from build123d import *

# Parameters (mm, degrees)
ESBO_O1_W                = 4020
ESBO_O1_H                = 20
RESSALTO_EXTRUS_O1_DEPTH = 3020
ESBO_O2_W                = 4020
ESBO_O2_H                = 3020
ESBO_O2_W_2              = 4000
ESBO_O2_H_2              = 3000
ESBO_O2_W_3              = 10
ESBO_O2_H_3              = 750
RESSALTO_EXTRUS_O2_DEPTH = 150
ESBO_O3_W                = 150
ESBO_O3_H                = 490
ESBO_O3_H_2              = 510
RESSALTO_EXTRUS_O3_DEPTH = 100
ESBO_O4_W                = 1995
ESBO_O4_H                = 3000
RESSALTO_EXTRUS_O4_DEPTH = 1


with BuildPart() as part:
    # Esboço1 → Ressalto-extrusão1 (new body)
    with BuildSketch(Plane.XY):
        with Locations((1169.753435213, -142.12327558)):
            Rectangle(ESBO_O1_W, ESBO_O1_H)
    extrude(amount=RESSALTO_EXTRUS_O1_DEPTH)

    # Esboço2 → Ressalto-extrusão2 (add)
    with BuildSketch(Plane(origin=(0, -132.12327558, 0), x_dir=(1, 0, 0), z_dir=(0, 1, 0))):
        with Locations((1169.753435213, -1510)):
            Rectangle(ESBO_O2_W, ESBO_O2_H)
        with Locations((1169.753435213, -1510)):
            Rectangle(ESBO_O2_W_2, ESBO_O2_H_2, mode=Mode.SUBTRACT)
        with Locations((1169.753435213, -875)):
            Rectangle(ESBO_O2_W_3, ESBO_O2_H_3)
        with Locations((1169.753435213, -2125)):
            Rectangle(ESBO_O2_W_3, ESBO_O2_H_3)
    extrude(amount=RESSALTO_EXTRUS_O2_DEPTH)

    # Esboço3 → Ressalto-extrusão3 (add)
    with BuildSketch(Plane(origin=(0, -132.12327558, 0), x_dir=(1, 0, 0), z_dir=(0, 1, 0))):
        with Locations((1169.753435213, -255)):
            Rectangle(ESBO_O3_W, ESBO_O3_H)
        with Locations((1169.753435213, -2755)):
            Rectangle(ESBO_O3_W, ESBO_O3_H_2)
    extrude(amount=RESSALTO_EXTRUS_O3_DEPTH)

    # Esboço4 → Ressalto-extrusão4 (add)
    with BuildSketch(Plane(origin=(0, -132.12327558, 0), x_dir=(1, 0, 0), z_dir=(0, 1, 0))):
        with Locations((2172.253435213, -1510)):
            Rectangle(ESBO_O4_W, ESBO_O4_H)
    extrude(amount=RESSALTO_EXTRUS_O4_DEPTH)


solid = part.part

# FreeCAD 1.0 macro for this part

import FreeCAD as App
import Part
import Sketcher
Q = App.Units.Quantity


def add_polygon(sketch, points):
    """Adds a closed chain of lines whose ends are joined by coincident constraints."""
    first, n = sketch.GeometryCount, len(points)
    for a, b in zip(points, points[1:] + points[:1]):
        sketch.addGeometry(Part.LineSegment(App.Vector(*a, 0), App.Vector(*b, 0)), False)
    for i in range(n):
        sketch.addConstraint(Sketcher.Constraint("Coincident", first + i, 2, first + (i + 1) % n, 1))

doc = App.newDocument("Part")
body = doc.addObject("PartDesign::Body", "Body")

# Sketch on XY plane
sketch1 = doc.addObject("Sketcher::SketchObject", "Sketch")
body.addObject(sketch1)
sketch1.AttachmentSupport = (doc.XY_Plane, [""])
sketch1.MapMode = "FlatFace"
add_polygon(sketch1, [(-840.246565, -132.123276), (-840.246565, -152.123276), (3179.753435, -152.123276), (3179.753435, -132.123276)])  # lines 0-3
sketch1.addConstraint(Sketcher.Constraint("Vertical", 0))
sketch1.addConstraint(Sketcher.Constraint("Horizontal", 1))
sketch1.addConstraint(Sketcher.Constraint("Vertical", 2))
sketch1.addConstraint(Sketcher.Constraint("Horizontal", 3))
sketch1.addConstraint(Sketcher.Constraint("DistanceX", 1, 1, 1, 2, Q("4020 mm")))
sketch1.addConstraint(Sketcher.Constraint("DistanceY", 0, 2, 0, 1, Q("20 mm")))
sketch1.addConstraint(Sketcher.Constraint("DistanceX", 0, 2, -1, 1, Q("840.246565 mm")))
sketch1.addConstraint(Sketcher.Constraint("DistanceY", 0, 2, -1, 1, Q("152.123276 mm")))
pad1 = doc.addObject("PartDesign::Pad", "Pad")
body.addObject(pad1)
pad1.Profile = sketch1
pad1.Length = 3020

# Sketch on XZ plane
sketch2 = doc.addObject("Sketcher::SketchObject", "Sketch001")
body.addObject(sketch2)
sketch2.AttachmentSupport = (doc.XZ_Plane, [""])
sketch2.MapMode = "FlatFace"
sketch2.AttachmentOffset = App.Placement(App.Vector(0, 0, 132.123276), App.Rotation())
add_polygon(sketch2, [(-840.246565, 0), (-840.246565, 3020), (3179.753435, 3020), (3179.753435, 0)])  # lines 0-3
add_polygon(sketch2, [(3169.753435, 3010), (-830.246565, 3010), (-830.246565, 10), (3169.753435, 10)])  # lines 4-7
add_polygon(sketch2, [(1164.753435, 500), (1164.753435, 1250), (1174.753435, 1250), (1174.753435, 500)])  # lines 8-11
add_polygon(sketch2, [(1164.753435, 1750), (1164.753435, 2500), (1174.753435, 2500), (1174.753435, 1750)])  # lines 12-15
sketch2.addConstraint(Sketcher.Constraint("Vertical", 0))
sketch2.addConstraint(Sketcher.Constraint("Horizontal", 1))
sketch2.addConstraint(Sketcher.Constraint("Vertical", 2))
sketch2.addConstraint(Sketcher.Constraint("Horizontal", 3))
sketch2.addConstraint(Sketcher.Constraint("Horizontal", 4))
sketch2.addConstraint(Sketcher.Constraint("Vertical", 5))
sketch2.addConstraint(Sketcher.Constraint("Horizontal", 6))
sketch2.addConstraint(Sketcher.Constraint("Vertical", 7))
sketch2.addConstraint(Sketcher.Constraint("Vertical", 8))
sketch2.addConstraint(Sketcher.Constraint("Horizontal", 9))
sketch2.addConstraint(Sketcher.Constraint("Vertical", 10))
sketch2.addConstraint(Sketcher.Constraint("Horizontal", 11))
sketch2.addConstraint(Sketcher.Constraint("Vertical", 12))
sketch2.addConstraint(Sketcher.Constraint("Horizontal", 13))
sketch2.addConstraint(Sketcher.Constraint("Vertical", 14))
sketch2.addConstraint(Sketcher.Constraint("Horizontal", 15))
sketch2.addConstraint(Sketcher.Constraint("PointOnObject", 2, 2, -1))
sketch2.addConstraint(Sketcher.Constraint("Vertical", 11, 2, 12, 2))
sketch2.addConstraint(Sketcher.Constraint("Vertical", 10, 2, 13, 2))
sketch2.addConstraint(Sketcher.Constraint("Equal", 10, 12))
sketch2.addConstraint(Sketcher.Constraint("DistanceX", 1, 1, 1, 2, Q("4020 mm")))
sketch2.addConstraint(Sketcher.Constraint("DistanceX", 4, 2, 4, 1, Q("4000 mm")))
sketch2.addConstraint(Sketcher.Constraint("DistanceX", 9, 1, 9, 2, Q("10 mm")))
sketch2.addConstraint(Sketcher.Constraint("DistanceY", 0, 1, 0, 2, Q("3020 mm")))
sketch2.addConstraint(Sketcher.Constraint("DistanceY", 5, 2, 5, 1, Q("3000 mm")))
sketch2.addConstraint(Sketcher.Constraint("DistanceY", 8, 1, 8, 2, Q("750 mm")))
sketch2.addConstraint(Sketcher.Constraint("DistanceY", -1, 1, 4, 2, Q("3010 mm")))
sketch2.addConstraint(Sketcher.Constraint("DistanceY", -1, 1, 8, 2, Q("1250 mm")))
sketch2.addConstraint(Sketcher.Constraint("DistanceY", -1, 1, 12, 2, Q("2500 mm")))
sketch2.addConstraint(Sketcher.Constraint("DistanceX", 0, 2, 4, 2, Q("10 mm")))
sketch2.addConstraint(Sketcher.Constraint("DistanceX", 5, 2, 8, 2, Q("1995 mm")))
sketch2.addConstraint(Sketcher.Constraint("DistanceX", 0, 2, -1, 1, Q("840.246565 mm")))
pad2 = doc.addObject("PartDesign::Pad", "Pad001")
body.addObject(pad2)
pad2.Profile = sketch2
pad2.Length = 150
pad2.Reversed = True

# Sketch on XZ plane
sketch3 = doc.addObject("Sketcher::SketchObject", "Sketch002")
body.addObject(sketch3)
sketch3.AttachmentSupport = (doc.XZ_Plane, [""])
sketch3.MapMode = "FlatFace"
sketch3.AttachmentOffset = App.Placement(App.Vector(0, 0, 132.123276), App.Rotation())
add_polygon(sketch3, [(1094.753435, 10), (1094.753435, 500), (1244.753435, 500), (1244.753435, 10)])  # lines 0-3
add_polygon(sketch3, [(1094.753435, 2500), (1094.753435, 3010), (1244.753435, 3010), (1244.753435, 2500)])  # lines 4-7
sketch3.addConstraint(Sketcher.Constraint("Vertical", 0))
sketch3.addConstraint(Sketcher.Constraint("Horizontal", 1))
sketch3.addConstraint(Sketcher.Constraint("Vertical", 2))
sketch3.addConstraint(Sketcher.Constraint("Horizontal", 3))
sketch3.addConstraint(Sketcher.Constraint("Vertical", 4))
sketch3.addConstraint(Sketcher.Constraint("Horizontal", 5))
sketch3.addConstraint(Sketcher.Constraint("Vertical", 6))
sketch3.addConstraint(Sketcher.Constraint("Horizontal", 7))
sketch3.addConstraint(Sketcher.Constraint("Vertical", 3, 2, 4, 2))
sketch3.addConstraint(Sketcher.Constraint("Vertical", 2, 2, 5, 2))
sketch3.addConstraint(Sketcher.Constraint("DistanceX", 1, 1, 1, 2, Q("150 mm")))
sketch3.addConstraint(Sketcher.Constraint("DistanceY", 0, 1, 0, 2, Q("490 mm")))
sketch3.addConstraint(Sketcher.Constraint("DistanceY", 4, 1, 4, 2, Q("510 mm")))
sketch3.addConstraint(Sketcher.Constraint("DistanceY", -1, 1, 0, 2, Q("500 mm")))
sketch3.addConstraint(Sketcher.Constraint("DistanceY", -1, 1, 4, 2, Q("3010 mm")))
sketch3.addConstraint(Sketcher.Constraint("DistanceX", -1, 1, 0, 2, Q("1094.753435 mm")))
pad3 = doc.addObject("PartDesign::Pad", "Pad002")
body.addObject(pad3)
pad3.Profile = sketch3
pad3.Length = 100
pad3.Reversed = True

# Sketch on XZ plane
sketch4 = doc.addObject("Sketcher::SketchObject", "Sketch003")
body.addObject(sketch4)
sketch4.AttachmentSupport = (doc.XZ_Plane, [""])
sketch4.MapMode = "FlatFace"
sketch4.AttachmentOffset = App.Placement(App.Vector(0, 0, 132.123276), App.Rotation())
add_polygon(sketch4, [(1174.753435, 10), (1174.753435, 3010), (3169.753435, 3010), (3169.753435, 10)])  # lines 0-3
sketch4.addConstraint(Sketcher.Constraint("Vertical", 0))
sketch4.addConstraint(Sketcher.Constraint("Horizontal", 1))
sketch4.addConstraint(Sketcher.Constraint("Vertical", 2))
sketch4.addConstraint(Sketcher.Constraint("Horizontal", 3))
sketch4.addConstraint(Sketcher.Constraint("DistanceX", 1, 1, 1, 2, Q("1995 mm")))
sketch4.addConstraint(Sketcher.Constraint("DistanceY", 0, 1, 0, 2, Q("3000 mm")))
sketch4.addConstraint(Sketcher.Constraint("DistanceY", -1, 1, 0, 2, Q("3010 mm")))
sketch4.addConstraint(Sketcher.Constraint("DistanceX", -1, 1, 0, 2, Q("1174.753435 mm")))
pad4 = doc.addObject("PartDesign::Pad", "Pad003")
body.addObject(pad4)
pad4.Profile = sketch4
pad4.Length = 1
pad4.Reversed = True

doc.recompute()
